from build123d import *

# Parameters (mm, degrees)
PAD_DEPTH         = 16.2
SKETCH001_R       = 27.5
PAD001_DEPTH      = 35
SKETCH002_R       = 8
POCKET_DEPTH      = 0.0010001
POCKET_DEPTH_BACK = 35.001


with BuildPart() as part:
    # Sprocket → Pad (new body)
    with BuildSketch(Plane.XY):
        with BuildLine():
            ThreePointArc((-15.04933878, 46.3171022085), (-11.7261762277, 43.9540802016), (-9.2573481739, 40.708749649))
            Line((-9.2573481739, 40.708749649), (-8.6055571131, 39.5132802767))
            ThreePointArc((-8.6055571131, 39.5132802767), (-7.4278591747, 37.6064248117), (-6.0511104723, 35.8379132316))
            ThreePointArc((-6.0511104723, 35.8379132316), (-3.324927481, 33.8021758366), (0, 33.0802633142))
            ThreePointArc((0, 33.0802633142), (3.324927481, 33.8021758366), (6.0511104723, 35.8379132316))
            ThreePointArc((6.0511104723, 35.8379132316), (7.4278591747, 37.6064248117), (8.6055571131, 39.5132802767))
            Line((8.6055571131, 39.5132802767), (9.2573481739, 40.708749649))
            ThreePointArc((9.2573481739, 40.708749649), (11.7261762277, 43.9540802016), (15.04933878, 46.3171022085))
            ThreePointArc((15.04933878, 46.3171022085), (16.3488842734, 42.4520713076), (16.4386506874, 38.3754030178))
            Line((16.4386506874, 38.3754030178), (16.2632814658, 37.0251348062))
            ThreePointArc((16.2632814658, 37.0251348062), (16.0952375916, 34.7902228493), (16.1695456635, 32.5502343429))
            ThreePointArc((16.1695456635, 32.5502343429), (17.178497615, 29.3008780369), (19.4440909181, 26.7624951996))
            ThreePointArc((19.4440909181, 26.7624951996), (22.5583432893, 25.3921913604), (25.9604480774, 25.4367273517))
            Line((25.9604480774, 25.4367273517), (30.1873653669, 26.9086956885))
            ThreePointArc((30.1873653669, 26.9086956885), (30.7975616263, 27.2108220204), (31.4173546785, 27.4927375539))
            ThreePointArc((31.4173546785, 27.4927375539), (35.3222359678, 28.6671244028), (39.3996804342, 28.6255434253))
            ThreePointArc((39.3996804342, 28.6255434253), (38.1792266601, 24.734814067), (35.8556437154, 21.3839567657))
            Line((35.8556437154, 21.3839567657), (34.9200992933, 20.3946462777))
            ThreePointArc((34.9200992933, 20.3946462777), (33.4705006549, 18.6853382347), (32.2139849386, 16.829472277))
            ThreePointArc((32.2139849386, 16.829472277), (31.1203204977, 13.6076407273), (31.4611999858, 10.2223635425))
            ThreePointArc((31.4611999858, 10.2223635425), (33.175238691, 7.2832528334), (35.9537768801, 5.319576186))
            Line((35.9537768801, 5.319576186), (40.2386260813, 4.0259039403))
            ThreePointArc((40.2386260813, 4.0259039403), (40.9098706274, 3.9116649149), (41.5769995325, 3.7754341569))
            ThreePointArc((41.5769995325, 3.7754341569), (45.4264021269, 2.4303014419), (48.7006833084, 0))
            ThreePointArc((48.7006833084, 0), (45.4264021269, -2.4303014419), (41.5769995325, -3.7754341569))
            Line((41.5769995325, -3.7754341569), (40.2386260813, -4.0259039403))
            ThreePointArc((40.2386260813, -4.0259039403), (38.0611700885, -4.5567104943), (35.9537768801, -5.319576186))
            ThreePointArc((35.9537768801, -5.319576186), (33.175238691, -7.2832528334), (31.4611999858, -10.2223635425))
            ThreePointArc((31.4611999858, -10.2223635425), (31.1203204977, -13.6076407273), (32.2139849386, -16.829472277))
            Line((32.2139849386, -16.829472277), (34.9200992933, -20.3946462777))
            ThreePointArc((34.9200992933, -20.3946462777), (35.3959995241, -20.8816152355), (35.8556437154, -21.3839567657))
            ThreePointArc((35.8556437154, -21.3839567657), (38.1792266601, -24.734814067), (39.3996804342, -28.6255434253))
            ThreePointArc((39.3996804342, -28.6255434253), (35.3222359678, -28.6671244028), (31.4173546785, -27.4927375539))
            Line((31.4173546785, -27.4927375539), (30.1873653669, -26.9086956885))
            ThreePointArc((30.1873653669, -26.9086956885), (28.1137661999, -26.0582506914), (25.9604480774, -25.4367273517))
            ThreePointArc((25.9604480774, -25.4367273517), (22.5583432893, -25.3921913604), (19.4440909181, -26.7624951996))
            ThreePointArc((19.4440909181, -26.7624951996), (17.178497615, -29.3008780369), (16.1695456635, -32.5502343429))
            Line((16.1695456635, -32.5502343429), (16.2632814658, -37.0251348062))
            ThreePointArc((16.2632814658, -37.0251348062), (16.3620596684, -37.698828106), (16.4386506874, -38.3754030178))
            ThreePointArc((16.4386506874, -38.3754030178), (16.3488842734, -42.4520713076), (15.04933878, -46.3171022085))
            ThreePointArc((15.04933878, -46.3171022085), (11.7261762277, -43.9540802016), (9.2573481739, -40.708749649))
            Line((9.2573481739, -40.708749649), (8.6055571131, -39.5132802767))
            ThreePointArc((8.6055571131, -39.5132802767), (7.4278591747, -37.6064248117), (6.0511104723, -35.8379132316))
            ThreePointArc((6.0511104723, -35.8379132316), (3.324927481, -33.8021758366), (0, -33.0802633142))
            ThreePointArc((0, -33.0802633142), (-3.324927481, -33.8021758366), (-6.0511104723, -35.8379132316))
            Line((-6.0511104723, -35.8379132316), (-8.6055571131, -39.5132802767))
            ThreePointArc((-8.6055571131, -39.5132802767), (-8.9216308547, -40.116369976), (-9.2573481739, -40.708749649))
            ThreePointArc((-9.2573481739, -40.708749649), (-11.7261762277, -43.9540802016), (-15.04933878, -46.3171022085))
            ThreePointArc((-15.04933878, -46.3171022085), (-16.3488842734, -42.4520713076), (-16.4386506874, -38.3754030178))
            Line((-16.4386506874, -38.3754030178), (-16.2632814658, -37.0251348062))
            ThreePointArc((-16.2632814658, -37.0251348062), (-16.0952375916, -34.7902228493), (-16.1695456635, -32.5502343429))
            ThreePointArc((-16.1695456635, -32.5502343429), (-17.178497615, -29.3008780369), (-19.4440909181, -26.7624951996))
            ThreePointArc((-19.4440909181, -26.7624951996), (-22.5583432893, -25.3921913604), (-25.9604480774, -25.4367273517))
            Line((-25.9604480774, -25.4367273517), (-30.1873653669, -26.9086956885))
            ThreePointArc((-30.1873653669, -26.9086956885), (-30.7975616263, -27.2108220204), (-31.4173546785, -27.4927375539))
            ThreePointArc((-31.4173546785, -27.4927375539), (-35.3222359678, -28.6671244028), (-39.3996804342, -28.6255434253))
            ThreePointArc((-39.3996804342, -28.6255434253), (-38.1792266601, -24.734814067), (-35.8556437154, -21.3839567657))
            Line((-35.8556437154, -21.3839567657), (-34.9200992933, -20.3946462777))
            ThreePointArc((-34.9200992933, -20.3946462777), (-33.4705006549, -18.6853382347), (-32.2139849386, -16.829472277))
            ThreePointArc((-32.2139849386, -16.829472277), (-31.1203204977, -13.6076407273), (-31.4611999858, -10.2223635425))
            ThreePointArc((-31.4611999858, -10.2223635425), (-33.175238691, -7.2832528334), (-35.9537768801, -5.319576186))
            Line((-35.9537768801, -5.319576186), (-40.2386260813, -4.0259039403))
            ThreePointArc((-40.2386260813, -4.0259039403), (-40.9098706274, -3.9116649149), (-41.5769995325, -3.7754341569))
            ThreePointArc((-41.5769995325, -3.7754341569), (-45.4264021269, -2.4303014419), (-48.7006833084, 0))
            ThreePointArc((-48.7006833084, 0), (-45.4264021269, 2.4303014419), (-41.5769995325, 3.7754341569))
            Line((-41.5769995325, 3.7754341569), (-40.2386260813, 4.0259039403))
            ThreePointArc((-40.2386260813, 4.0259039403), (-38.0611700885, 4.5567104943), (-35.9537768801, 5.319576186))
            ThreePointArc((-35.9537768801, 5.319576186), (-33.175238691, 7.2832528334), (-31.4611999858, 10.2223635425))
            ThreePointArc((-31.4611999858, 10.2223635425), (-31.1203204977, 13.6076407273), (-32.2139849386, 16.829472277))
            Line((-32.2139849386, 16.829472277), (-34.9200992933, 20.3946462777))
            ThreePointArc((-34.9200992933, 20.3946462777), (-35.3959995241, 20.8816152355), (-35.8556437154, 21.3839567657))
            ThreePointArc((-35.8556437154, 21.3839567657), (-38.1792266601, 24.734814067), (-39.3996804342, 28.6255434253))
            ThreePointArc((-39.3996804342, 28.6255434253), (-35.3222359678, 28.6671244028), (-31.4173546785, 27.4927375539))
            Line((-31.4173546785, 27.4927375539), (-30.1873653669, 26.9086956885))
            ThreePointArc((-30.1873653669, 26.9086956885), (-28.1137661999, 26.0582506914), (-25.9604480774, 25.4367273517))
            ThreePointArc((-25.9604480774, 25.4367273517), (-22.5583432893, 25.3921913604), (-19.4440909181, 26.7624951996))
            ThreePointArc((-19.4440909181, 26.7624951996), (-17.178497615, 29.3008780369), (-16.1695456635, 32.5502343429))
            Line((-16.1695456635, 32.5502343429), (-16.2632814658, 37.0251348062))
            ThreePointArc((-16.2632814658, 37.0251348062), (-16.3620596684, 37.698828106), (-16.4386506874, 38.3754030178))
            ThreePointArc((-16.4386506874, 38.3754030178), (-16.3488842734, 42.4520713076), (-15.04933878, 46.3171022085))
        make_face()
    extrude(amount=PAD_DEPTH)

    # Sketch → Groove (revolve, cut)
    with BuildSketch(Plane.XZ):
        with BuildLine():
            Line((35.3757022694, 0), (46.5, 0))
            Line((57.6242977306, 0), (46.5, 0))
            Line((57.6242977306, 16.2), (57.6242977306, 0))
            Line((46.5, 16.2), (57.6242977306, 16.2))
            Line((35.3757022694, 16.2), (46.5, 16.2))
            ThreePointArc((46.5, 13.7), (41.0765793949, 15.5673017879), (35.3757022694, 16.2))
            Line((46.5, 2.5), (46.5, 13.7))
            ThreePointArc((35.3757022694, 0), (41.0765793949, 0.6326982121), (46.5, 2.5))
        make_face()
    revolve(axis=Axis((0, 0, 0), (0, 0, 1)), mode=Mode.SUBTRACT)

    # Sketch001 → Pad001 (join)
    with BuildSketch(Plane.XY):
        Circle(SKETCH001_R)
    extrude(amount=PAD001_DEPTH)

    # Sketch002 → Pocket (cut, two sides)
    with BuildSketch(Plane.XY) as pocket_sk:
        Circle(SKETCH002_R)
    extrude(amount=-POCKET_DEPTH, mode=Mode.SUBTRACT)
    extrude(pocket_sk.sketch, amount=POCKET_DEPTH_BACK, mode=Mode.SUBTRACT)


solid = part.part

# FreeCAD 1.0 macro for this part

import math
import FreeCAD as App
import Part
import Sketcher
from FreeCAD import Vector
Q = App.Units.Quantity

doc = App.newDocument("Part")
body = doc.addObject("PartDesign::Body", "Body")

# Sketch on XY plane
sketch1 = body.newObject("Sketcher::SketchObject", "Sketch")
sketch1.AttachmentSupport = (doc.getObject("XY_Plane"), [""])
sketch1.MapMode = "FlatFace"
sketch1.addGeometry([
    Part.ArcOfCircle(Part.Circle(Vector(-21.1, 34.2, 0), Vector(0, 0, 1), 13.5), math.radians(29), math.radians(63)),  # 0
    Part.ArcOfCircle(Part.Circle(Vector(-3, 40.1, 0), Vector(0, 0, 1), 13.5), math.radians(153), math.radians(187)),  # 1
    Part.ArcOfCircle(Part.Circle(Vector(4.2, 40.4, 0), Vector(0, 0, 1), 20.7), math.radians(-174.48), math.radians(-170.72)),  # 2
    Part.LineSegment(Vector(-16.3, 37, 0), Vector(-16.2, 32.6, 0)),  # 3
    Part.ArcOfCircle(Part.Circle(Vector(-24.2, 33.2, 0), Vector(0, 0, 1), 8), math.radians(-54), math.radians(-5)),  # 4
    Part.ArcOfCircle(Part.Circle(Vector(-24.2, 33.2, 0), Vector(0, 0, 1), 8), math.radians(-103), math.radians(-54)),  # 5
    Part.ArcOfCircle(Part.Circle(Vector(-21.3, 45.6, 0), Vector(0, 0, 1), 20.7), math.radians(-115.4), math.radians(-103)),  # 6
    Part.LineSegment(Vector(-30.2, 26.9, 0), Vector(-31.4, 27.5, 0)),  # 7
    Part.ArcOfCircle(Part.Circle(Vector(-37.2, 15.3, 0), Vector(0, 0, 1), 13.5), math.radians(65), math.radians(99)),  # 8
    Part.ArcOfCircle(Part.Circle(Vector(-26, 30.7, 0), Vector(0, 0, 1), 13.5), math.radians(-171), math.radians(-137)),  # 9
    Part.ArcOfCircle(Part.Circle(Vector(-20.3, 35.1, 0), Vector(0, 0, 1), 20.7), math.radians(-138.48), math.radians(-134.72)),  # 10
    Part.LineSegment(Vector(-34.9, 20.4, 0), Vector(-32.2, 16.8, 0)),  # 11
    Part.ArcOfCircle(Part.Circle(Vector(-39.1, 12.7, 0), Vector(0, 0, 1), 8), math.radians(-18), math.radians(31)),  # 12
    Part.ArcOfCircle(Part.Circle(Vector(-39.1, 12.7, 0), Vector(0, 0, 1), 8), math.radians(-67), math.radians(-18)),  # 13
    Part.ArcOfCircle(Part.Circle(Vector(-44.1, 24.4, 0), Vector(0, 0, 1), 20.7), math.radians(-79.4), math.radians(-67)),  # 14
    Part.LineSegment(Vector(-40.2, 4, 0), Vector(-41.6, 3.8, 0)),  # 15
    Part.ArcOfCircle(Part.Circle(Vector(-39.1, -9.5, 0), Vector(0, 0, 1), 13.5), math.radians(101), math.radians(135)),  # 16
    Part.ArcOfCircle(Part.Circle(Vector(-39.1, 9.5, 0), Vector(0, 0, 1), 13.5), math.radians(-135), math.radians(-101)),  # 17
    Part.ArcOfCircle(Part.Circle(Vector(-37.1, 16.5, 0), Vector(0, 0, 1), 20.7), math.radians(-102.48), math.radians(-98.72)),  # 18
    Part.LineSegment(Vector(-40.2, -4, 0), Vector(-36, -5.3, 0)),  # 19
    Part.ArcOfCircle(Part.Circle(Vector(-39.1, -12.7, 0), Vector(0, 0, 1), 8), math.radians(18), math.radians(67)),  # 20
    Part.ArcOfCircle(Part.Circle(Vector(-39.1, -12.7, 0), Vector(0, 0, 1), 8), math.radians(-31), math.radians(18)),  # 21
    Part.ArcOfCircle(Part.Circle(Vector(-50, -6.2, 0), Vector(0, 0, 1), 20.7), math.radians(-43.4), math.radians(-31)),  # 22
    Part.LineSegment(Vector(-34.9, -20.4, 0), Vector(-35.9, -21.4, 0)),  # 23
    Part.ArcOfCircle(Part.Circle(Vector(-26, -30.7, 0), Vector(0, 0, 1), 13.5), math.radians(137), math.radians(171)),  # 24
    Part.ArcOfCircle(Part.Circle(Vector(-37.2, -15.3, 0), Vector(0, 0, 1), 13.5), math.radians(-99), math.radians(-65)),  # 25
    Part.ArcOfCircle(Part.Circle(Vector(-39.7, -8.5, 0), Vector(0, 0, 1), 20.7), math.radians(-66.48), math.radians(-62.72)),  # 26
    Part.LineSegment(Vector(-30.2, -26.9, 0), Vector(-26, -25.4, 0)),  # 27
    Part.ArcOfCircle(Part.Circle(Vector(-24.2, -33.2, 0), Vector(0, 0, 1), 8), math.radians(54), math.radians(103)),  # 28
    Part.ArcOfCircle(Part.Circle(Vector(-24.2, -33.2, 0), Vector(0, 0, 1), 8), math.radians(5), math.radians(54)),  # 29
    Part.ArcOfCircle(Part.Circle(Vector(-36.8, -34.4, 0), Vector(0, 0, 1), 20.7), math.radians(-7.4), math.radians(5)),  # 30
    Part.LineSegment(Vector(-16.3, -37, 0), Vector(-16.4, -38.4, 0)),  # 31
    Part.ArcOfCircle(Part.Circle(Vector(-3, -40.1, 0), Vector(0, 0, 1), 13.5), math.radians(173), math.radians(207)),  # 32
    Part.ArcOfCircle(Part.Circle(Vector(-21.1, -34.2, 0), Vector(0, 0, 1), 13.5), math.radians(-63), math.radians(-29)),  # 33
    Part.ArcOfCircle(Part.Circle(Vector(-27.1, -30.2, 0), Vector(0, 0, 1), 20.7), math.radians(-30.48), math.radians(-26.72)),  # 34
    Part.LineSegment(Vector(-8.6, -39.5, 0), Vector(-6.1, -35.8, 0)),  # 35
    Part.ArcOfCircle(Part.Circle(Vector(0, -41.1, 0), Vector(0, 0, 1), 8), math.radians(90), math.radians(139)),  # 36
    Part.ArcOfCircle(Part.Circle(Vector(0, -41.1, 0), Vector(0, 0, 1), 8), math.radians(41), math.radians(90)),  # 37
    Part.ArcOfCircle(Part.Circle(Vector(-9.6, -49.4, 0), Vector(0, 0, 1), 20.7), math.radians(28.6), math.radians(41)),  # 38
    Part.LineSegment(Vector(8.6, -39.5, 0), Vector(9.3, -40.7, 0)),  # 39
    Part.ArcOfCircle(Part.Circle(Vector(21.1, -34.2, 0), Vector(0, 0, 1), 13.5), math.radians(-151), math.radians(-117)),  # 40
    Part.ArcOfCircle(Part.Circle(Vector(3, -40.1, 0), Vector(0, 0, 1), 13.5), math.radians(-27), math.radians(7)),  # 41
    Part.ArcOfCircle(Part.Circle(Vector(-4.2, -40.4, 0), Vector(0, 0, 1), 20.7), math.radians(5.52), math.radians(9.28)),  # 42
    Part.LineSegment(Vector(16.3, -37, 0), Vector(16.2, -32.6, 0)),  # 43
    Part.ArcOfCircle(Part.Circle(Vector(24.2, -33.2, 0), Vector(0, 0, 1), 8), math.radians(126), math.radians(175)),  # 44
    Part.ArcOfCircle(Part.Circle(Vector(24.2, -33.2, 0), Vector(0, 0, 1), 8), math.radians(77), math.radians(126)),  # 45
    Part.ArcOfCircle(Part.Circle(Vector(21.3, -45.6, 0), Vector(0, 0, 1), 20.7), math.radians(64.6), math.radians(77)),  # 46
    Part.LineSegment(Vector(30.2, -26.9, 0), Vector(31.4, -27.5, 0)),  # 47
    Part.ArcOfCircle(Part.Circle(Vector(37.2, -15.3, 0), Vector(0, 0, 1), 13.5), math.radians(-115), math.radians(-81)),  # 48
    Part.ArcOfCircle(Part.Circle(Vector(26, -30.7, 0), Vector(0, 0, 1), 13.5), math.radians(9), math.radians(43)),  # 49
    Part.ArcOfCircle(Part.Circle(Vector(20.3, -35.1, 0), Vector(0, 0, 1), 20.7), math.radians(41.52), math.radians(45.28)),  # 50
    Part.LineSegment(Vector(34.9, -20.4, 0), Vector(32.2, -16.8, 0)),  # 51
    Part.ArcOfCircle(Part.Circle(Vector(39.1, -12.7, 0), Vector(0, 0, 1), 8), math.radians(162), math.radians(211)),  # 52
    Part.ArcOfCircle(Part.Circle(Vector(39.1, -12.7, 0), Vector(0, 0, 1), 8), math.radians(113), math.radians(162)),  # 53
    Part.ArcOfCircle(Part.Circle(Vector(44.1, -24.4, 0), Vector(0, 0, 1), 20.7), math.radians(100.6), math.radians(113)),  # 54
    Part.LineSegment(Vector(40.2, -4, 0), Vector(41.6, -3.8, 0)),  # 55
    Part.ArcOfCircle(Part.Circle(Vector(39.1, 9.5, 0), Vector(0, 0, 1), 13.5), math.radians(-79), math.radians(-45)),  # 56
    Part.ArcOfCircle(Part.Circle(Vector(39.1, -9.5, 0), Vector(0, 0, 1), 13.5), math.radians(45), math.radians(79)),  # 57
    Part.ArcOfCircle(Part.Circle(Vector(37.1, -16.5, 0), Vector(0, 0, 1), 20.7), math.radians(77.52), math.radians(81.28)),  # 58
    Part.LineSegment(Vector(40.2, 4, 0), Vector(36, 5.3, 0)),  # 59
    Part.ArcOfCircle(Part.Circle(Vector(39.1, 12.7, 0), Vector(0, 0, 1), 8), math.radians(-162), math.radians(-113)),  # 60
    Part.ArcOfCircle(Part.Circle(Vector(39.1, 12.7, 0), Vector(0, 0, 1), 8), math.radians(149), math.radians(198)),  # 61
    Part.ArcOfCircle(Part.Circle(Vector(50, 6.2, 0), Vector(0, 0, 1), 20.7), math.radians(136.6), math.radians(149)),  # 62
    Part.LineSegment(Vector(34.9, 20.4, 0), Vector(35.9, 21.4, 0)),  # 63
    Part.ArcOfCircle(Part.Circle(Vector(26, 30.7, 0), Vector(0, 0, 1), 13.5), math.radians(-43), math.radians(-9)),  # 64
    Part.ArcOfCircle(Part.Circle(Vector(37.2, 15.3, 0), Vector(0, 0, 1), 13.5), math.radians(81), math.radians(115)),  # 65
    Part.ArcOfCircle(Part.Circle(Vector(39.7, 8.5, 0), Vector(0, 0, 1), 20.7), math.radians(113.52), math.radians(117.28)),  # 66
    Part.LineSegment(Vector(30.2, 26.9, 0), Vector(26, 25.4, 0)),  # 67
    Part.ArcOfCircle(Part.Circle(Vector(24.2, 33.2, 0), Vector(0, 0, 1), 8), math.radians(-126), math.radians(-77)),  # 68
    Part.ArcOfCircle(Part.Circle(Vector(24.2, 33.2, 0), Vector(0, 0, 1), 8), math.radians(-175), math.radians(-126)),  # 69
    Part.ArcOfCircle(Part.Circle(Vector(36.8, 34.4, 0), Vector(0, 0, 1), 20.7), math.radians(172.6), math.radians(185)),  # 70
    Part.LineSegment(Vector(16.3, 37, 0), Vector(16.4, 38.4, 0)),  # 71
    Part.ArcOfCircle(Part.Circle(Vector(3, 40.1, 0), Vector(0, 0, 1), 13.5), math.radians(-7), math.radians(27)),  # 72
    Part.ArcOfCircle(Part.Circle(Vector(21.1, 34.2, 0), Vector(0, 0, 1), 13.5), math.radians(117), math.radians(151)),  # 73
    Part.LineSegment(Vector(9.3, 40.7, 0), Vector(8.6, 39.5, 0)),  # 74
    Part.ArcOfCircle(Part.Circle(Vector(-9.6, 49.4, 0), Vector(0, 0, 1), 20.7), math.radians(-41), math.radians(-28.6)),  # 75
    Part.ArcOfCircle(Part.Circle(Vector(0, 41.1, 0), Vector(0, 0, 1), 8), math.radians(-90), math.radians(-41)),  # 76
    Part.ArcOfCircle(Part.Circle(Vector(0, 41.1, 0), Vector(0, 0, 1), 8), math.radians(-139), math.radians(-90)),  # 77
    Part.ArcOfCircle(Part.Circle(Vector(9.6, 49.4, 0), Vector(0, 0, 1), 20.7), math.radians(-151.4), math.radians(-139)),  # 78
    Part.LineSegment(Vector(-8.6, 39.5, 0), Vector(-9.3, 40.7, 0)),  # 79
], False)
sketch1.addConstraint([
    Sketcher.Constraint("Coincident", 0, 2, 1, 1),
    Sketcher.Constraint("Coincident", 1, 2, 2, 1),
    Sketcher.Constraint("Coincident", 2, 2, 3, 1),
    Sketcher.Constraint("Coincident", 3, 2, 4, 2),
    Sketcher.Constraint("Tangent", 4, 1, 5, 2),
    Sketcher.Constraint("Tangent", 5, 1, 6, 2),
    Sketcher.Constraint("Tangent", 6, 1, 7, 1),
    Sketcher.Constraint("Tangent", 7, 2, 8, 1),
    Sketcher.Constraint("Coincident", 8, 2, 9, 1),
    Sketcher.Constraint("Coincident", 9, 2, 10, 1),
    Sketcher.Constraint("Coincident", 10, 2, 11, 1),
    Sketcher.Constraint("Coincident", 11, 2, 12, 2),
    Sketcher.Constraint("Tangent", 12, 1, 13, 2),
    Sketcher.Constraint("Tangent", 13, 1, 14, 2),
    Sketcher.Constraint("Tangent", 14, 1, 15, 1),
    Sketcher.Constraint("Tangent", 15, 2, 16, 1),
    Sketcher.Constraint("Coincident", 16, 2, 17, 1),
    Sketcher.Constraint("Coincident", 17, 2, 18, 1),
    Sketcher.Constraint("Coincident", 18, 2, 19, 1),
    Sketcher.Constraint("Coincident", 19, 2, 20, 2),
    Sketcher.Constraint("Tangent", 20, 1, 21, 2),
    Sketcher.Constraint("Tangent", 21, 1, 22, 2),
    Sketcher.Constraint("Tangent", 22, 1, 23, 1),
    Sketcher.Constraint("Tangent", 23, 2, 24, 1),
    Sketcher.Constraint("Coincident", 24, 2, 25, 1),
    Sketcher.Constraint("Coincident", 25, 2, 26, 1),
    Sketcher.Constraint("Coincident", 26, 2, 27, 1),
    Sketcher.Constraint("Coincident", 27, 2, 28, 2),
    Sketcher.Constraint("Tangent", 28, 1, 29, 2),
    Sketcher.Constraint("Tangent", 29, 1, 30, 2),
    Sketcher.Constraint("Tangent", 30, 1, 31, 1),
    Sketcher.Constraint("Tangent", 31, 2, 32, 1),
    Sketcher.Constraint("Coincident", 32, 2, 33, 1),
    Sketcher.Constraint("Coincident", 33, 2, 34, 1),
    Sketcher.Constraint("Coincident", 34, 2, 35, 1),
    Sketcher.Constraint("Coincident", 35, 2, 36, 2),
    Sketcher.Constraint("Tangent", 36, 1, 37, 2),
    Sketcher.Constraint("Tangent", 37, 1, 38, 2),
    Sketcher.Constraint("Tangent", 38, 1, 39, 1),
    Sketcher.Constraint("Tangent", 39, 2, 40, 1),
    Sketcher.Constraint("Coincident", 40, 2, 41, 1),
    Sketcher.Constraint("Coincident", 41, 2, 42, 1),
    Sketcher.Constraint("Coincident", 42, 2, 43, 1),
    Sketcher.Constraint("Coincident", 43, 2, 44, 2),
    Sketcher.Constraint("Tangent", 44, 1, 45, 2),
    Sketcher.Constraint("Tangent", 45, 1, 46, 2),
    Sketcher.Constraint("Tangent", 46, 1, 47, 1),
    Sketcher.Constraint("Tangent", 47, 2, 48, 1),
    Sketcher.Constraint("Coincident", 48, 2, 49, 1),
    Sketcher.Constraint("Coincident", 49, 2, 50, 1),
    Sketcher.Constraint("Coincident", 50, 2, 51, 1),
    Sketcher.Constraint("Coincident", 51, 2, 52, 2),
    Sketcher.Constraint("Tangent", 52, 1, 53, 2),
    Sketcher.Constraint("Tangent", 53, 1, 54, 2),
    Sketcher.Constraint("Tangent", 54, 1, 55, 1),
    Sketcher.Constraint("Tangent", 55, 2, 56, 1),
    Sketcher.Constraint("Coincident", 56, 2, 57, 1),
    Sketcher.Constraint("Coincident", 57, 2, 58, 1),
    Sketcher.Constraint("Coincident", 58, 2, 59, 1),
    Sketcher.Constraint("Coincident", 59, 2, 60, 2),
    Sketcher.Constraint("Tangent", 60, 1, 61, 2),
    Sketcher.Constraint("Tangent", 61, 1, 62, 2),
    Sketcher.Constraint("Tangent", 62, 1, 63, 1),
    Sketcher.Constraint("Tangent", 63, 2, 64, 1),
    Sketcher.Constraint("Coincident", 64, 2, 65, 1),
    Sketcher.Constraint("Coincident", 65, 2, 66, 1),
    Sketcher.Constraint("Coincident", 66, 2, 67, 1),
    Sketcher.Constraint("Coincident", 67, 2, 68, 2),
    Sketcher.Constraint("Tangent", 68, 1, 69, 2),
    Sketcher.Constraint("Tangent", 69, 1, 70, 2),
    Sketcher.Constraint("Tangent", 70, 1, 71, 1),
    Sketcher.Constraint("Tangent", 71, 2, 72, 1),
    Sketcher.Constraint("Coincident", 72, 2, 73, 1),
    Sketcher.Constraint("Tangent", 73, 2, 74, 1),
    Sketcher.Constraint("Tangent", 74, 2, 75, 2),
    Sketcher.Constraint("Tangent", 75, 1, 76, 2),
    Sketcher.Constraint("Tangent", 76, 1, 77, 2),
    Sketcher.Constraint("Tangent", 77, 1, 78, 2),
    Sketcher.Constraint("Tangent", 78, 1, 79, 1),
    Sketcher.Constraint("Tangent", 79, 2, 0, 1),
    Sketcher.Constraint("Equal", 0, 1),
    Sketcher.Constraint("Equal", 4, 5),
    Sketcher.Constraint("Equal", 2, 6),
    Sketcher.Constraint("Equal", 1, 8),
    Sketcher.Constraint("Equal", 8, 9),
    Sketcher.Constraint("Equal", 6, 10),
    Sketcher.Constraint("Equal", 5, 12),
    Sketcher.Constraint("Equal", 12, 13),
    Sketcher.Constraint("Equal", 10, 14),
    Sketcher.Constraint("Equal", 9, 16),
    Sketcher.Constraint("Equal", 16, 17),
    Sketcher.Constraint("Equal", 14, 18),
    Sketcher.Constraint("Equal", 13, 20),
    Sketcher.Constraint("Equal", 20, 21),
    Sketcher.Constraint("Equal", 18, 22),
    Sketcher.Constraint("Equal", 17, 24),
    Sketcher.Constraint("Equal", 24, 25),
    Sketcher.Constraint("Equal", 22, 26),
    Sketcher.Constraint("Equal", 21, 28),
    Sketcher.Constraint("Equal", 28, 29),
    Sketcher.Constraint("Equal", 26, 30),
    Sketcher.Constraint("Equal", 25, 32),
    Sketcher.Constraint("Equal", 32, 33),
    Sketcher.Constraint("Equal", 30, 34),
    Sketcher.Constraint("Equal", 29, 36),
    Sketcher.Constraint("Equal", 36, 37),
    Sketcher.Constraint("Equal", 34, 38),
    Sketcher.Constraint("Equal", 33, 40),
    Sketcher.Constraint("Equal", 40, 41),
    Sketcher.Constraint("Equal", 38, 42),
    Sketcher.Constraint("Equal", 37, 44),
    Sketcher.Constraint("Equal", 44, 45),
    Sketcher.Constraint("Equal", 42, 46),
    Sketcher.Constraint("Equal", 41, 48),
    Sketcher.Constraint("Equal", 48, 49),
    Sketcher.Constraint("Equal", 46, 50),
    Sketcher.Constraint("Equal", 45, 52),
    Sketcher.Constraint("Equal", 52, 53),
    Sketcher.Constraint("Equal", 50, 54),
    Sketcher.Constraint("Equal", 49, 56),
    Sketcher.Constraint("Equal", 56, 57),
    Sketcher.Constraint("Equal", 54, 58),
    Sketcher.Constraint("Equal", 53, 60),
    Sketcher.Constraint("Equal", 60, 61),
    Sketcher.Constraint("Equal", 58, 62),
    Sketcher.Constraint("Equal", 57, 64),
    Sketcher.Constraint("Equal", 64, 65),
    Sketcher.Constraint("Equal", 62, 66),
    Sketcher.Constraint("Equal", 61, 68),
    Sketcher.Constraint("Equal", 68, 69),
    Sketcher.Constraint("Equal", 66, 70),
    Sketcher.Constraint("Equal", 65, 72),
    Sketcher.Constraint("Equal", 72, 73),
    Sketcher.Constraint("Equal", 70, 75),
    Sketcher.Constraint("Equal", 69, 76),
    Sketcher.Constraint("Equal", 76, 77),
    Sketcher.Constraint("Equal", 75, 78),
    Sketcher.Constraint("Symmetric", 0, 3, 40, 3, -1, 1),
    Sketcher.Constraint("Symmetric", 1, 3, 41, 3, -1, 1),
    Sketcher.Constraint("Symmetric", 2, 3, 42, 3, -1, 1),
    Sketcher.Constraint("Symmetric", 4, 3, 44, 3, -1, 1),
    Sketcher.Constraint("Symmetric", 8, 3, 48, 3, -1, 1),
    Sketcher.Constraint("Symmetric", 9, 3, 49, 3, -1, 1),
    Sketcher.Constraint("Symmetric", 10, 3, 50, 3, -1, 1),
    Sketcher.Constraint("Symmetric", 12, 3, 52, 3, -1, 1),
    Sketcher.Constraint("Symmetric", 16, 3, 56, 3, -1, 1),
    Sketcher.Constraint("Symmetric", 17, 3, 57, 3, -1, 1),
    Sketcher.Constraint("Symmetric", 18, 3, 58, 3, -1, 1),
    Sketcher.Constraint("Symmetric", 20, 3, 60, 3, -1, 1),
    Sketcher.Constraint("Symmetric", 24, 3, 64, 3, -1, 1),
    Sketcher.Constraint("Symmetric", 25, 3, 65, 3, -1, 1),
    Sketcher.Constraint("Symmetric", 26, 3, 66, 3, -1, 1),
    Sketcher.Constraint("Symmetric", 28, 3, 68, 3, -1, 1),
    Sketcher.Constraint("Symmetric", 32, 3, 72, 3, -1, 1),
    Sketcher.Constraint("Symmetric", 33, 3, 73, 3, -1, 1),
    Sketcher.Constraint("Symmetric", 36, 3, 76, 3, -1, 1),
    Sketcher.Constraint("Symmetric", 34, 2, 74, 2, -1, 1),
    Sketcher.Constraint("Symmetric", 33, 3, 40, 3, -2),
    Sketcher.Constraint("Symmetric", 32, 3, 41, 3, -2),
    Sketcher.Constraint("Symmetric", 28, 3, 44, 3, -2),
    Sketcher.Constraint("Symmetric", 25, 3, 48, 3, -2),
    Sketcher.Constraint("Symmetric", 24, 3, 49, 3, -2),
    Sketcher.Constraint("Symmetric", 20, 3, 52, 3, -2),
    Sketcher.Constraint("Symmetric", 17, 3, 56, 3, -2),
    Sketcher.Constraint("Symmetric", 75, 3, 78, 3, -2),
    Sketcher.Constraint("Symmetric", 30, 1, 42, 2, -2),
    Sketcher.Constraint("Symmetric", 26, 2, 46, 1, -2),
    Sketcher.Constraint("Symmetric", 22, 1, 50, 2, -2),
    Sketcher.Constraint("Symmetric", 18, 2, 54, 1, -2),
    Sketcher.Constraint("Symmetric", 14, 1, 58, 2, -2),
    Sketcher.Constraint("Symmetric", 10, 2, 62, 1, -2),
    Sketcher.Constraint("Symmetric", 6, 1, 66, 2, -2),
    Sketcher.Constraint("Symmetric", 2, 2, 70, 1, -2),
    Sketcher.Constraint("PointOnObject", 36, 1, -2),
    Sketcher.Constraint("PointOnObject", 76, 1, -2),
    Sketcher.Constraint("Parallel", 3, 43),
    Sketcher.Constraint("Parallel", 11, 51),
    Sketcher.Constraint("Parallel", 19, 59),
    Sketcher.Constraint("Parallel", 27, 67),
    Sketcher.Constraint("Parallel", 39, 79),
    Sketcher.Constraint("Horizontal", 35, 2, 37, 1),
    Sketcher.Constraint("Horizontal", 33, 2, 39, 2),
    Sketcher.Constraint("Horizontal", 31, 2, 41, 2),
    Sketcher.Constraint("Horizontal", 29, 1, 43, 2),
    Sketcher.Constraint("Horizontal", 28, 1, 44, 1),
    Sketcher.Constraint("Horizontal", 27, 2, 45, 1),
    Sketcher.Constraint("Horizontal", 25, 2, 47, 2),
    Sketcher.Constraint("Horizontal", 23, 2, 49, 2),
    Sketcher.Constraint("Horizontal", 21, 1, 51, 2),
    Sketcher.Constraint("Horizontal", 20, 1, 52, 1),
    Sketcher.Constraint("Horizontal", 19, 2, 53, 1),
    Sketcher.Constraint("Horizontal", 17, 2, 55, 2),
    Sketcher.Constraint("Horizontal", 12, 1, 60, 1),
    Sketcher.Constraint("Horizontal", 4, 1, 68, 1),
    Sketcher.Constraint("Vertical", 13, 3, 16, 3),
    Sketcher.Constraint("Vertical", 12, 1, 20, 1),
    Sketcher.Constraint("Vertical", 4, 1, 28, 1),
    Sketcher.Constraint("Equal", 3, 11),
    Sketcher.Constraint("Equal", 7, 15),
    Sketcher.Constraint("Equal", 11, 19),
    Sketcher.Constraint("Equal", 15, 23),
    Sketcher.Constraint("Equal", 19, 27),
    Sketcher.Constraint("Equal", 23, 31),
    Sketcher.Constraint("Equal", 27, 35),
    Sketcher.Constraint("Equal", 31, 39),
    Sketcher.Constraint("Angle", 3, Q("-88.8 deg")),
    Sketcher.Constraint("Angle", 7, Q("154.6 deg")),
    Sketcher.Constraint("Angle", 11, Q("-52.8 deg")),
    Sketcher.Constraint("Angle", 15, Q("-169.4 deg")),
    Sketcher.Constraint("Angle", 19, Q("-16.8 deg")),
    Sketcher.Constraint("Angle", 35, Q("55.2 deg")),
    Sketcher.Constraint("DistanceY", -1, 1, 12, 3, 12.7),
    Sketcher.Constraint("Radius", 2, 20.7218),
    Sketcher.Constraint("Radius", 4, 8.0178),
    Sketcher.Constraint("DistanceY", 16, 3, -1, 1, 9.532),
    Sketcher.Constraint("DistanceX", 15, 2, -1, 1, 41.577),
    Sketcher.Constraint("DistanceX", 12, 1, -1, 1, 31.4612),
    Sketcher.Constraint("DistanceX", -1, 1, 2, 3, 4.187152),
    Sketcher.Constraint("DistanceY", -1, 1, 4, 3, 33.249032),
    Sketcher.Constraint("DistanceX", 0, 2, -1, 1, 15.049339),
    Sketcher.Constraint("DistanceX", 4, 1, -1, 1, 19.444091),
])
pad1 = body.newObject("PartDesign::Pad", "Pad")
pad1.Profile = sketch1
pad1.Length = 16.2

# Sketch on XZ plane
sketch2 = body.newObject("Sketcher::SketchObject", "Sketch001")
sketch2.AttachmentSupport = (doc.getObject("XZ_Plane"), [""])
sketch2.MapMode = "FlatFace"
sketch2.addGeometry([
    Part.LineSegment(Vector(35, 0, 0), Vector(58, 0, 0)),  # 0
    Part.LineSegment(Vector(58, 0, 0), Vector(58, 16, 0)),  # 1
    Part.LineSegment(Vector(58, 16, 0), Vector(35, 16, 0)),  # 2
    Part.ArcOfCircle(Part.Circle(Vector(35, -10, 0), Vector(0, 0, 1), 26), math.radians(65), math.radians(90)),  # 3
    Part.LineSegment(Vector(46, 14, 0), Vector(46, 2, 0)),  # 4
    Part.ArcOfCircle(Part.Circle(Vector(35, 26, 0), Vector(0, 0, 1), 26), math.radians(-90), math.radians(-65)),  # 5
], False)
sketch2.addConstraint([
    Sketcher.Constraint("Coincident", 0, 2, 1, 1),
    Sketcher.Constraint("Coincident", 1, 2, 2, 1),
    Sketcher.Constraint("Tangent", 2, 2, 3, 2),
    Sketcher.Constraint("Coincident", 3, 1, 4, 1),
    Sketcher.Constraint("Coincident", 4, 2, 5, 2),
    Sketcher.Constraint("Tangent", 5, 1, 0, 1),
    Sketcher.Constraint("Horizontal", 0),
    Sketcher.Constraint("Vertical", 1),
    Sketcher.Constraint("Horizontal", 2),
    Sketcher.Constraint("Vertical", 4),
    Sketcher.Constraint("Equal", 3, 5),
    Sketcher.Constraint("PointOnObject", 0, 2, -1),
    Sketcher.Constraint("Vertical", 3, 3, 5, 3),
    Sketcher.Constraint("Radius", 3, 26.0),
    Sketcher.Constraint("DistanceY", 1, 1, 1, 2, 16.2),
    Sketcher.Constraint("DistanceY", 4, 2, 4, 1, 11.2),
    Sketcher.Constraint("DistanceX", -1, 1, 3, 1, 46.5),
    Sketcher.Constraint("DistanceX", 0, 1, 0, 2, 22.248595),
])
groove = body.newObject("PartDesign::Groove", "Groove")
groove.Profile = sketch2
groove.ReferenceAxis = (sketch2, ["V_Axis"])
groove.Angle = 360

# Sketch on XY plane
sketch3 = body.newObject("Sketcher::SketchObject", "Sketch002")
sketch3.AttachmentSupport = (doc.getObject("XY_Plane"), [""])
sketch3.MapMode = "FlatFace"
sketch3.addGeometry(Part.Circle(Vector(0, 0, 0), Vector(0, 0, 1), 28), False)
sketch3.addConstraint([
    Sketcher.Constraint("Coincident", 0, 3, -1, 1),
    Sketcher.Constraint("Diameter", 0, 55.0),
])
pad2 = body.newObject("PartDesign::Pad", "Pad001")
pad2.Profile = sketch3
pad2.Length = 35

# Sketch on XY plane
sketch4 = body.newObject("Sketcher::SketchObject", "Sketch003")
sketch4.AttachmentSupport = (doc.getObject("XY_Plane"), [""])
sketch4.MapMode = "FlatFace"
sketch4.addGeometry(Part.Circle(Vector(0, 0, 0), Vector(0, 0, 1), 8), False)
sketch4.addConstraint([
    Sketcher.Constraint("Coincident", 0, 3, -1, 1),
    Sketcher.Constraint("Diameter", 0, 16.0),
])
pocket1 = body.newObject("PartDesign::Pocket", "Pocket")
pocket1.Profile = sketch4
pocket1.Type = "ThroughAll"
pocket1.Midplane = True

doc.recompute()
